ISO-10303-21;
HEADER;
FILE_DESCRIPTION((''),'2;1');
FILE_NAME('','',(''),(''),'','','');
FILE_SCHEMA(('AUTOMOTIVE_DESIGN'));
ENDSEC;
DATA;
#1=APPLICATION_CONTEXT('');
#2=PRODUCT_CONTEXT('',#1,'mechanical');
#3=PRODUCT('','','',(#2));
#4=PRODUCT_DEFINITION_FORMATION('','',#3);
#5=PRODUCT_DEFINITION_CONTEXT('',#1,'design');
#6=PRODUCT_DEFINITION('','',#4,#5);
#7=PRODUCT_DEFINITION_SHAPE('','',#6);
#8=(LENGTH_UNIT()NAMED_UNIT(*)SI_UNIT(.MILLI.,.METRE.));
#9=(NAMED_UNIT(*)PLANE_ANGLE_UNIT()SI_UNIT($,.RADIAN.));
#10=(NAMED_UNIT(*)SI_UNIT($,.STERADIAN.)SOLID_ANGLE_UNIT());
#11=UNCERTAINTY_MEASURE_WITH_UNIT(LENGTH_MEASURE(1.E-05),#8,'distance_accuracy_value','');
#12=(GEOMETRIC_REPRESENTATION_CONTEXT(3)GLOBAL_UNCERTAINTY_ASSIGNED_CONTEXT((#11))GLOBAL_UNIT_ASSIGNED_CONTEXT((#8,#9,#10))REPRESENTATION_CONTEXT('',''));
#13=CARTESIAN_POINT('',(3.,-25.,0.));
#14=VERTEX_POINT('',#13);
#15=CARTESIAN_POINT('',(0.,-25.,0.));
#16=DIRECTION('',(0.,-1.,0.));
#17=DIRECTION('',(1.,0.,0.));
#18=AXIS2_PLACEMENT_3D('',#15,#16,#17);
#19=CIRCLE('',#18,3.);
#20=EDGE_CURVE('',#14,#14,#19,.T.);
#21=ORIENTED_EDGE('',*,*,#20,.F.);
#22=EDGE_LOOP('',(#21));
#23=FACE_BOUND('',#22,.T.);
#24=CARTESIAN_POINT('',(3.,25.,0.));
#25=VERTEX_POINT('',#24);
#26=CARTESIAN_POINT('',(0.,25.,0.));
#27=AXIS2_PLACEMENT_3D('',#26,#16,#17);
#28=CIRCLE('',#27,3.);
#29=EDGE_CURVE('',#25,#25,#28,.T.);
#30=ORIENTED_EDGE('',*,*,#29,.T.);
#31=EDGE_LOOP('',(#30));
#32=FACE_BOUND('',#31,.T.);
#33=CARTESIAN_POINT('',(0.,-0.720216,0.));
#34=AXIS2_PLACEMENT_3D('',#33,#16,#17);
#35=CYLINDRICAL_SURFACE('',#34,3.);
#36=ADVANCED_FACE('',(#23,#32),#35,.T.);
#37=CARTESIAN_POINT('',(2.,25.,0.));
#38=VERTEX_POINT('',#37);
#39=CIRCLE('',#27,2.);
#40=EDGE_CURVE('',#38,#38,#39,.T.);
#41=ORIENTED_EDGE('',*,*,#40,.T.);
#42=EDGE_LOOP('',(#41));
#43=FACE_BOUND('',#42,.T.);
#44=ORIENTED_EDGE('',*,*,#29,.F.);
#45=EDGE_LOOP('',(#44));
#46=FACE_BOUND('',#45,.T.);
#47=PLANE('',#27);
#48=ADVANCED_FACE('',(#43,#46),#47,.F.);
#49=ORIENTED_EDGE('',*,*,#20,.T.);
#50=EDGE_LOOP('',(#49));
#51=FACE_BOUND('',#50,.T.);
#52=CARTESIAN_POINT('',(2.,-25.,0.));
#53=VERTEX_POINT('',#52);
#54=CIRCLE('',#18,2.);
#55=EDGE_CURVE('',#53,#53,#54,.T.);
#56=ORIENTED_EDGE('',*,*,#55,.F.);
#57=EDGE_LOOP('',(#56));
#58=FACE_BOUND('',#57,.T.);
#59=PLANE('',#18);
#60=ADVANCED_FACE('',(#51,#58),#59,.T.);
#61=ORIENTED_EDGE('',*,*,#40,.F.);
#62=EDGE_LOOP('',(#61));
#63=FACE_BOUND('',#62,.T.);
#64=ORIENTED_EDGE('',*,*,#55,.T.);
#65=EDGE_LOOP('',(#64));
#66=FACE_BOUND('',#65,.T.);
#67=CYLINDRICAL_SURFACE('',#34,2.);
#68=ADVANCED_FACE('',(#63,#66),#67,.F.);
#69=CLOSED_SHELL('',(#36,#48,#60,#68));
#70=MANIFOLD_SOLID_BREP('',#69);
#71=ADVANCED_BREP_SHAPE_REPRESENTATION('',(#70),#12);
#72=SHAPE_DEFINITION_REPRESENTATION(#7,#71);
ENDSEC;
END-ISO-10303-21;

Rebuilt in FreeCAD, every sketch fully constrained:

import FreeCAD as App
import Part
import Sketcher
from FreeCAD import Vector
Q = App.Units.Quantity


def add_polygon(sketch, points):
    """Adds a closed chain of lines whose ends are joined by coincident constraints."""
    first, n = sketch.GeometryCount, len(points)
    for a, b in zip(points, points[1:] + points[:1]):
        sketch.addGeometry(Part.LineSegment(App.Vector(*a, 0), App.Vector(*b, 0)), False)
    for i in range(n):
        sketch.addConstraint(Sketcher.Constraint("Coincident", first + i, 2, first + (i + 1) % n, 1))

doc = App.newDocument("Part")
body = doc.addObject("PartDesign::Body", "Body")

sketch1 = body.newObject("Sketcher::SketchObject", "Sketch")
sketch1.AttachmentSupport = (doc.getObject("XY_Plane"), [""])
sketch1.MapMode = "FlatFace"
add_polygon(sketch1, [(-3, 25), (-3, -25), (-2, -25), (-2, 25)])
sketch1.addConstraint([
    Sketcher.Constraint("Vertical", 0),
    Sketcher.Constraint("Horizontal", 1),
    Sketcher.Constraint("Vertical", 2),
    Sketcher.Constraint("Horizontal", 3),
    Sketcher.Constraint("DistanceX", 1, 1, 1, 2, Q("1 mm")),
    Sketcher.Constraint("DistanceY", 0, 2, 0, 1, Q("50 mm")),
    Sketcher.Constraint("DistanceX", 0, 2, -1, 1, Q("3 mm")),
    Sketcher.Constraint("DistanceY", 0, 2, -1, 1, Q("25 mm")),
])
revolution = body.newObject("PartDesign::Revolution", "Revolution")
revolution.Profile = sketch1
revolution.ReferenceAxis = (sketch1, ["V_Axis"])
revolution.Angle = 360

doc.recompute()
